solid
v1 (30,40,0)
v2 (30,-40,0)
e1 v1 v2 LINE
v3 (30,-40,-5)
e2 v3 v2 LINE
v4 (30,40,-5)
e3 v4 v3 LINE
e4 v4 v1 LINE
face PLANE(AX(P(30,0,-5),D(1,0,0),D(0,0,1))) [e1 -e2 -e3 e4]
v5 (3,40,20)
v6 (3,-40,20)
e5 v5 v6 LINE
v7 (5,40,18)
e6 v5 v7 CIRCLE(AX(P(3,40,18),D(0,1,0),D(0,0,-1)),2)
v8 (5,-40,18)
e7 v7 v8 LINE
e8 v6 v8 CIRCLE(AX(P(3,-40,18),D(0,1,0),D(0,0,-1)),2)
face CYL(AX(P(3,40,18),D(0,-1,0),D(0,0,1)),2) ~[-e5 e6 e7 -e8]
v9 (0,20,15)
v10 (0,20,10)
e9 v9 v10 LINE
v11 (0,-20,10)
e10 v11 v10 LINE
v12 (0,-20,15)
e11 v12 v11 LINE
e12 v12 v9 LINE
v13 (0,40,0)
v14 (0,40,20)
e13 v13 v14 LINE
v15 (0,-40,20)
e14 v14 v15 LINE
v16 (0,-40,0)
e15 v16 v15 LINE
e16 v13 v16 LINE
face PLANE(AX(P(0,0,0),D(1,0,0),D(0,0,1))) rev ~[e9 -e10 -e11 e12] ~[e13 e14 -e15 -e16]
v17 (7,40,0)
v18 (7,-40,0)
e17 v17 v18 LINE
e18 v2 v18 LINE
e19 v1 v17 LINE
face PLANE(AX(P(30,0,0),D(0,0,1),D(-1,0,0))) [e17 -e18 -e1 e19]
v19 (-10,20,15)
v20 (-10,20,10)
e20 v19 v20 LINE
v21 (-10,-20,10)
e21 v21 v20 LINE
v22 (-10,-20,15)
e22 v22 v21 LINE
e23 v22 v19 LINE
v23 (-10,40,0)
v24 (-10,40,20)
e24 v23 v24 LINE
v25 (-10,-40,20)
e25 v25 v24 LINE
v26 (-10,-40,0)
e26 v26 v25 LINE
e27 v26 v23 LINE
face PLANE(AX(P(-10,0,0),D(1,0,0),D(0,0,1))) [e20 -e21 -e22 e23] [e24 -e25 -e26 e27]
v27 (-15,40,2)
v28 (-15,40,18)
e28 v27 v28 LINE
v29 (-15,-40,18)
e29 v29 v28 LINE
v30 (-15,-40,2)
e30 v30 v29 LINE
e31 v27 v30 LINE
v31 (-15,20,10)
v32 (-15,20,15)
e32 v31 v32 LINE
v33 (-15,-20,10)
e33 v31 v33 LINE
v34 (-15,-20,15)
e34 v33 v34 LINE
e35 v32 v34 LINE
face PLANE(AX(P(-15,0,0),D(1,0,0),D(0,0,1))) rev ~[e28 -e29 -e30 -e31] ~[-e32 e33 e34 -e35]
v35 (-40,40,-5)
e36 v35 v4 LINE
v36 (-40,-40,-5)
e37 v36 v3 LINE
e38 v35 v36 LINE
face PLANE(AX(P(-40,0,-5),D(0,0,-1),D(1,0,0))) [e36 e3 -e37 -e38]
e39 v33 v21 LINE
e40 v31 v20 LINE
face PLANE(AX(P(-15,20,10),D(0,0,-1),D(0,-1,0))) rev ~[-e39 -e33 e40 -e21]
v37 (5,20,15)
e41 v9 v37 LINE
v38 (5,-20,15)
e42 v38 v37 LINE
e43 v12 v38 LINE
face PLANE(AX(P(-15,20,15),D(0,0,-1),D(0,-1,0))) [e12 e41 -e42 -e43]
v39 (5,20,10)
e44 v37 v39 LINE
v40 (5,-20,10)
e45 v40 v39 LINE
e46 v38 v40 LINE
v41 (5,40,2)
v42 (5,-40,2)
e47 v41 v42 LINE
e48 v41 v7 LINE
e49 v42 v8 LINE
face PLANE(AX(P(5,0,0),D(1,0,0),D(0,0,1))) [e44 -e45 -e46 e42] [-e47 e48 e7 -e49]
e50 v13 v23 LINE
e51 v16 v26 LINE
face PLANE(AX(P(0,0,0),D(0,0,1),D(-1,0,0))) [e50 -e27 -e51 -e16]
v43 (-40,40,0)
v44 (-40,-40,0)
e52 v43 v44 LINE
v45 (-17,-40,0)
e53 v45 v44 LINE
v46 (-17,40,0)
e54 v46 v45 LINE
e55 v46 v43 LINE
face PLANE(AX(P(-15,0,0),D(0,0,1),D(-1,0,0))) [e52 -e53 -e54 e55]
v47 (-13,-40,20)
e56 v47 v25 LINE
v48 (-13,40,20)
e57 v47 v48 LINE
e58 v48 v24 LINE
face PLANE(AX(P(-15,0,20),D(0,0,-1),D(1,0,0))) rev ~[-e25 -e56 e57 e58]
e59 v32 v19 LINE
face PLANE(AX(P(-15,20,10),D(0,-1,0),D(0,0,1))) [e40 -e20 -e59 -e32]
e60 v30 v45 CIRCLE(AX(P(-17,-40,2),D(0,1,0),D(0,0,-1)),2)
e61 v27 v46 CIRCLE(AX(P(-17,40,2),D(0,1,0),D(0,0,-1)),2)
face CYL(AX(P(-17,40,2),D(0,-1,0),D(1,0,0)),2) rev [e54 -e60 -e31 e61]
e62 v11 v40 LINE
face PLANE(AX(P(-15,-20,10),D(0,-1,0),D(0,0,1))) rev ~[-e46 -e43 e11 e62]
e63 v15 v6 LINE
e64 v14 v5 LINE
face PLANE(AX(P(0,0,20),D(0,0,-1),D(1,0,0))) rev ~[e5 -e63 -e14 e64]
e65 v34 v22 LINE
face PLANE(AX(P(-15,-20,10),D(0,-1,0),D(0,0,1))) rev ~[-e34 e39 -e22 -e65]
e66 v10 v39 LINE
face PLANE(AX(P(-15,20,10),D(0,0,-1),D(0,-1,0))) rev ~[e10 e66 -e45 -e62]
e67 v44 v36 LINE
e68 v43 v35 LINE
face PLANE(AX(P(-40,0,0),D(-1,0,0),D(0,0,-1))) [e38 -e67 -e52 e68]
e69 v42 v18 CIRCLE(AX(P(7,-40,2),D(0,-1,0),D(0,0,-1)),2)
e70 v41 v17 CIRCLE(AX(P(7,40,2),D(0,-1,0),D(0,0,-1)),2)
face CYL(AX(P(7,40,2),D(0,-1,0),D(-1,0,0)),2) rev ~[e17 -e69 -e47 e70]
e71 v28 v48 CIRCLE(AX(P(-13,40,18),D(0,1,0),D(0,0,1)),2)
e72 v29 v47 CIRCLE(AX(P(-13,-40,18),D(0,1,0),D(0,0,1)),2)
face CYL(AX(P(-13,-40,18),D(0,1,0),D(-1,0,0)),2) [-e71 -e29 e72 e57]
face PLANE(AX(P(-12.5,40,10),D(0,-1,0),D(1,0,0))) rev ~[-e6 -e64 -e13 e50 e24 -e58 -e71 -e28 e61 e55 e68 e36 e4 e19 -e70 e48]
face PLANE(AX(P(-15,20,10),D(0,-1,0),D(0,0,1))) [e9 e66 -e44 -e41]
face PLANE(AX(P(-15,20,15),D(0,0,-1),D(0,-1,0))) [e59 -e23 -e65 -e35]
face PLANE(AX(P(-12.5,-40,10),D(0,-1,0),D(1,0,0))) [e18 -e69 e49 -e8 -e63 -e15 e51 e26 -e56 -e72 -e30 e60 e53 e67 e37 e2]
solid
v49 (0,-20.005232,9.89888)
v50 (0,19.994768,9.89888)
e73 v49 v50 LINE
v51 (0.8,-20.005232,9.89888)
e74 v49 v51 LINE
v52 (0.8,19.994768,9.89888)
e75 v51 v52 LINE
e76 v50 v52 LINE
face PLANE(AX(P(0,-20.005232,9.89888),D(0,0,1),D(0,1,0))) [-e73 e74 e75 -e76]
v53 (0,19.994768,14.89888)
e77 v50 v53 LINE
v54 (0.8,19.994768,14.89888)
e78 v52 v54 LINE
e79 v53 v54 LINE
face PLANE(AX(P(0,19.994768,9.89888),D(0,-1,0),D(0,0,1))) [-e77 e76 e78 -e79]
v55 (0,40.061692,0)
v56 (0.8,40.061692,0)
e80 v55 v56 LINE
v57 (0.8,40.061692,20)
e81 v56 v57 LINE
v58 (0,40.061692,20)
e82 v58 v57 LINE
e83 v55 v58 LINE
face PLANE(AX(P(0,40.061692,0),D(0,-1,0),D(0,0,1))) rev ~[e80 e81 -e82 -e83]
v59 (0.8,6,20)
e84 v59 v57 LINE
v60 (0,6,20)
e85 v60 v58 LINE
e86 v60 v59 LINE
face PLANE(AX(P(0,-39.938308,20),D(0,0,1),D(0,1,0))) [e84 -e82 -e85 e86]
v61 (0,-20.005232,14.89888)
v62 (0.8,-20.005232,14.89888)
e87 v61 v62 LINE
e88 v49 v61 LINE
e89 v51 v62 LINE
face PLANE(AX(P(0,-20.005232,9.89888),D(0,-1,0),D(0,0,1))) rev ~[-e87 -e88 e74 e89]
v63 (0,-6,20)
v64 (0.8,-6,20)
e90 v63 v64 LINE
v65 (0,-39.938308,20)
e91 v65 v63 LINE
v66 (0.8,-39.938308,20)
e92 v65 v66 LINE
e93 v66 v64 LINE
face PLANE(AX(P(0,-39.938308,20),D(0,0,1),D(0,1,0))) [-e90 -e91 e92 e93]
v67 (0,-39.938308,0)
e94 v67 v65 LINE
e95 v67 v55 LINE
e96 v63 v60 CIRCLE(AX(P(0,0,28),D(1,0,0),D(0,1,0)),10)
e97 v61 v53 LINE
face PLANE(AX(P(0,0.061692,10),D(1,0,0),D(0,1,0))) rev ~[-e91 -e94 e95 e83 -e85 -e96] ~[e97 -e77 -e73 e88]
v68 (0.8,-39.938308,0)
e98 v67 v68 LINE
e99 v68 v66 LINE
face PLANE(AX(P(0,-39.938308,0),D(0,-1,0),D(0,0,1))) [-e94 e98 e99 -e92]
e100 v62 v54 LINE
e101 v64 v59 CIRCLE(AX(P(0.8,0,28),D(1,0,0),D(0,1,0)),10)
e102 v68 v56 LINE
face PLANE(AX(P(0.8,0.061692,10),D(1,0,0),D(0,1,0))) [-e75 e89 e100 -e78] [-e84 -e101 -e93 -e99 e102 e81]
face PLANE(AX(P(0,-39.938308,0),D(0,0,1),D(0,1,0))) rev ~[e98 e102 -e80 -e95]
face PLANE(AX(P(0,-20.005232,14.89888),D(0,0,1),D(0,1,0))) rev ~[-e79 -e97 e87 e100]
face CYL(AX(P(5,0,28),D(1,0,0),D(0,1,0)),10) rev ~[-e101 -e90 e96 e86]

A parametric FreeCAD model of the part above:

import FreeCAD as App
import Part
import Sketcher

V = App.Vector
Q = App.Units.Quantity


def edges_at(feature, points):
    """Names of the edges that pass closest to the given points."""
    edges = feature.Shape.Edges
    near = lambda p: min(range(len(edges)), key=lambda i: edges[i].distToShape(Part.Vertex(*p))[0])
    return sorted({f"Edge{near(p) + 1}" for p in points})


def add_polygon(sketch, points):
    """Adds a closed chain of lines whose ends are joined by coincident constraints."""
    first, n = sketch.GeometryCount, len(points)
    for a, b in zip(points, points[1:] + points[:1]):
        sketch.addGeometry(Part.LineSegment(App.Vector(*a, 0), App.Vector(*b, 0)), False)
    for i in range(n):
        sketch.addConstraint(Sketcher.Constraint("Coincident", first + i, 2, first + (i + 1) % n, 1))

doc = App.newDocument("Part")
body = doc.addObject("PartDesign::Body", "Body")

# Sketch on XZ plane
sketch1 = body.newObject("Sketcher::SketchObject", "Sketch")
sketch1.AttachmentSupport = (doc.getObject("XZ_Plane"), [""])
sketch1.MapMode = "FlatFace"
add_polygon(sketch1, [(-15, 20), (-15, 0), (-40, 0), (-40, -5), (30, -5), (30, 0), (5, 0), (5, 20), (0, 20), (0, 0), (-10, 0), (-10, 20)])  # lines 0-11
sketch1.addConstraint([
    Sketcher.Constraint("Vertical", 0),
    Sketcher.Constraint("Horizontal", 1),
    Sketcher.Constraint("Vertical", 2),
    Sketcher.Constraint("Horizontal", 3),
    Sketcher.Constraint("Vertical", 4),
    Sketcher.Constraint("Horizontal", 5),
    Sketcher.Constraint("Vertical", 6),
    Sketcher.Constraint("Horizontal", 7),
    Sketcher.Constraint("Vertical", 8),
    Sketcher.Constraint("Horizontal", 9),
    Sketcher.Constraint("Vertical", 10),
    Sketcher.Constraint("Horizontal", 11),
    Sketcher.Constraint("Coincident", 8, 2, -1, 1),
    Sketcher.Constraint("PointOnObject", 0, 2, -1),
    Sketcher.Constraint("PointOnObject", 4, 2, -1),
    Sketcher.Constraint("Horizontal", 7, 2, 10, 2),
    Sketcher.Constraint("Equal", 1, 5),
    Sketcher.Constraint("Equal", 7, 11),
    Sketcher.Constraint("Equal", 11, 2),
    Sketcher.Constraint("DistanceX", 1, 2, 1, 1, Q("25 mm")),
    Sketcher.Constraint("DistanceX", 3, 1, 3, 2, Q("70 mm")),
    Sketcher.Constraint("DistanceX", 7, 2, 7, 1, Q("5 mm")),
    Sketcher.Constraint("DistanceY", 0, 2, 0, 1, Q("20 mm")),
])
pad1 = body.newObject("PartDesign::Pad", "Pad")
pad1.Profile = sketch1
pad1.Length = 80
pad1.Midplane = True
doc.recompute()

fillet = body.newObject("PartDesign::Fillet", "Fillet")
fillet.Base = (pad1, edges_at(pad1, [(5, 0, 0), (-15, 0, 0)]))
fillet.Radius = 2
doc.recompute()

fillet2 = body.newObject("PartDesign::Fillet", "Fillet001")
fillet2.Base = (fillet, edges_at(fillet, [(-15, 0, 20), (5, 0, 20)]))
fillet2.Radius = 2

# Sketch on YZ plane
sketch2 = body.newObject("Sketcher::SketchObject", "Sketch001")
sketch2.AttachmentSupport = (doc.getObject("YZ_Plane"), [""])
sketch2.MapMode = "FlatFace"
sketch2.AttachmentOffset = App.Placement(V(0, 0, -15), App.Rotation())
add_polygon(sketch2, [(20, 15), (20, 10), (-20, 10), (-20, 15)])  # lines 0-3
sketch2.addConstraint([
    Sketcher.Constraint("Vertical", 0),
    Sketcher.Constraint("Horizontal", 1),
    Sketcher.Constraint("Vertical", 2),
    Sketcher.Constraint("Horizontal", 3),
    Sketcher.Constraint("DistanceX", 1, 2, 1, 1, Q("40 mm")),
    Sketcher.Constraint("DistanceY", 0, 2, 0, 1, Q("5 mm")),
    Sketcher.Constraint("DistanceX", -1, 1, 0, 2, Q("20 mm")),
    Sketcher.Constraint("DistanceY", -1, 1, 0, 2, Q("10 mm")),
])
pocket1 = body.newObject("PartDesign::Pocket", "Pocket")
pocket1.Profile = sketch2
pocket1.Length = 25
pocket1.Reversed = True
body2 = doc.addObject("PartDesign::Body", "Body001")

# Sketch on YZ plane
sketch3 = body2.newObject("Sketcher::SketchObject", "Sketch002")
sketch3.AttachmentSupport = (doc.getObject("YZ_Plane001"), [""])
sketch3.MapMode = "FlatFace"
sketch3.AttachmentOffset = App.Placement(V(0, 0, 5), App.Rotation())
sketch3.addGeometry(Part.Circle(V(0, 28, 0), V(0, 0, 1), 10), False)
sketch3.addConstraint([
    Sketcher.Constraint("PointOnObject", 0, 3, -2),
    Sketcher.Constraint("Diameter", 0, Q("20 mm")),
    Sketcher.Constraint("DistanceY", -1, 1, 0, 3, Q("28 mm")),
])
pad2 = body2.newObject("PartDesign::Pad", "Pad001")
pad2.Profile = sketch3
pad2.Length = 25
pad2.Reversed = True
body3 = doc.addObject("PartDesign::Body", "Body002")

# Sketch on YZ plane
sketch4 = body3.newObject("Sketcher::SketchObject", "Sketch003")
sketch4.AttachmentSupport = (doc.getObject("YZ_Plane002"), [""])
sketch4.MapMode = "FlatFace"
add_polygon(sketch4, [(-40, 20), (-40, 0), (40, 0), (40, 20)])  # lines 0-3
add_polygon(sketch4, [(20, 10), (-20, 10), (-20, 15), (20, 15)])  # lines 4-7
sketch4.addConstraint([
    Sketcher.Constraint("Vertical", 0),
    Sketcher.Constraint("Horizontal", 1),
    Sketcher.Constraint("Vertical", 2),
    Sketcher.Constraint("Horizontal", 3),
    Sketcher.Constraint("Horizontal", 4),
    Sketcher.Constraint("Vertical", 5),
    Sketcher.Constraint("Horizontal", 6),
    Sketcher.Constraint("Vertical", 7),
    Sketcher.Constraint("PointOnObject", 0, 2, -1),
    Sketcher.Constraint("DistanceX", 1, 1, 1, 2, Q("80 mm")),
    Sketcher.Constraint("DistanceX", 4, 2, 4, 1, Q("40 mm")),
    Sketcher.Constraint("DistanceY", 0, 2, 0, 1, Q("20 mm")),
    Sketcher.Constraint("DistanceY", 5, 1, 5, 2, Q("5 mm")),
    Sketcher.Constraint("DistanceX", 0, 2, -1, 1, Q("39.938308 mm")),
    Sketcher.Constraint("DistanceX", 4, 2, -1, 1, Q("20.005232 mm")),
    Sketcher.Constraint("DistanceY", -1, 1, 4, 2, Q("9.89888 mm")),
])
pad3 = body3.newObject("PartDesign::Pad", "Pad002")
pad3.Profile = sketch4
pad3.Length = 0.8
doc.recompute()

boolean = body3.newObject("PartDesign::Boolean", "Boolean")
boolean.Type = "Cut"
boolean.addObjects([body2])

doc.recompute()
